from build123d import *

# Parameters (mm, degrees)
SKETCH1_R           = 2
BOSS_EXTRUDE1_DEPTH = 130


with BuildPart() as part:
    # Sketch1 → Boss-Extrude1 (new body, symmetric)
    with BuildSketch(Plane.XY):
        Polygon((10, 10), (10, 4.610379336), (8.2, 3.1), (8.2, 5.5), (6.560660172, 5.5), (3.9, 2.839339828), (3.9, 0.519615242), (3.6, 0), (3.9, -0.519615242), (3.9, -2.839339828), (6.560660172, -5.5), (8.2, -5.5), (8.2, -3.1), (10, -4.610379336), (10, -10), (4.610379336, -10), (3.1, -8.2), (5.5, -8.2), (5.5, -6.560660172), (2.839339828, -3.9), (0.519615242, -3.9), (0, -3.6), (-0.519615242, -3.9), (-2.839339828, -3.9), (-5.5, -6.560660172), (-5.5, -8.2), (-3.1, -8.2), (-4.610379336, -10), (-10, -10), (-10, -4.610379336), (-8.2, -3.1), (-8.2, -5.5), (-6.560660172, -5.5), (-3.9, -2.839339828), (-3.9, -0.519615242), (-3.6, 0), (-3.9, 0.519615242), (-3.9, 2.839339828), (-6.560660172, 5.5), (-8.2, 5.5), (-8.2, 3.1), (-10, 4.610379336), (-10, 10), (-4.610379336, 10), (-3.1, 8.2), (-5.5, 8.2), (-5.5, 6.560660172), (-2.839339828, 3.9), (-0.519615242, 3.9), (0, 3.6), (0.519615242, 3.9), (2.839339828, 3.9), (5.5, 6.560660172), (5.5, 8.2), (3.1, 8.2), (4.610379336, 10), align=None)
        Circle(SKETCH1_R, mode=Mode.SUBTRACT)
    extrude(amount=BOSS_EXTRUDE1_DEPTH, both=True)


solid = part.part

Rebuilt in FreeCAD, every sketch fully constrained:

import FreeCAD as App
import Part
import Sketcher

V = App.Vector
Q = App.Units.Quantity

doc = App.newDocument("Part")
body = doc.addObject("PartDesign::Body", "Body")

# Sketch on XY plane
sketch1 = doc.addObject("Sketcher::SketchObject", "Sketch")
body.addObject(sketch1)
sketch1.AttachmentSupport = (doc.XY_Plane, [""])
sketch1.MapMode = "FlatFace"
sketch1.addGeometry([
    Part.LineSegment(V(10, 4.6, 0), V(10, 10, 0)),  # 0
    Part.LineSegment(V(10, 10, 0), V(4.6, 10, 0)),  # 1
    Part.LineSegment(V(4.6, 10, 0), V(3.1, 8.2, 0)),  # 2
    Part.LineSegment(V(3.1, 8.2, 0), V(5.5, 8.2, 0)),  # 3
    Part.LineSegment(V(5.5, 8.2, 0), V(5.5, 6.6, 0)),  # 4
    Part.LineSegment(V(5.5, 6.6, 0), V(2.8, 3.9, 0)),  # 5
    Part.LineSegment(V(2.8, 3.9, 0), V(0.5, 3.9, 0)),  # 6
    Part.LineSegment(V(0.5, 3.9, 0), V(0, 3.6, 0)),  # 7
    Part.LineSegment(V(0, 3.6, 0), V(-0.5, 3.9, 0)),  # 8
    Part.LineSegment(V(-0.5, 3.9, 0), V(-2.8, 3.9, 0)),  # 9
    Part.LineSegment(V(-2.8, 3.9, 0), V(-5.5, 6.6, 0)),  # 10
    Part.LineSegment(V(-5.5, 6.6, 0), V(-5.5, 8.2, 0)),  # 11
    Part.LineSegment(V(-5.5, 8.2, 0), V(-3.1, 8.2, 0)),  # 12
    Part.LineSegment(V(-3.1, 8.2, 0), V(-4.6, 10, 0)),  # 13
    Part.LineSegment(V(-4.6, 10, 0), V(-10, 10, 0)),  # 14
    Part.LineSegment(V(-10, 10, 0), V(-10, 4.6, 0)),  # 15
    Part.LineSegment(V(-10, 4.6, 0), V(-8.2, 3.1, 0)),  # 16
    Part.LineSegment(V(-8.2, 3.1, 0), V(-8.2, 5.5, 0)),  # 17
    Part.LineSegment(V(-8.2, 5.5, 0), V(-6.6, 5.5, 0)),  # 18
    Part.LineSegment(V(-6.6, 5.5, 0), V(-3.9, 2.8, 0)),  # 19
    Part.LineSegment(V(-3.9, 2.8, 0), V(-3.9, 0.5, 0)),  # 20
    Part.LineSegment(V(-3.9, 0.5, 0), V(-3.6, 0, 0)),  # 21
    Part.LineSegment(V(-3.6, 0, 0), V(-3.9, -0.5, 0)),  # 22
    Part.LineSegment(V(-3.9, -0.5, 0), V(-3.9, -2.8, 0)),  # 23
    Part.LineSegment(V(-3.9, -2.8, 0), V(-6.6, -5.5, 0)),  # 24
    Part.LineSegment(V(-6.6, -5.5, 0), V(-8.2, -5.5, 0)),  # 25
    Part.LineSegment(V(-8.2, -5.5, 0), V(-8.2, -3.1, 0)),  # 26
    Part.LineSegment(V(-8.2, -3.1, 0), V(-10, -4.6, 0)),  # 27
    Part.LineSegment(V(-10, -4.6, 0), V(-10, -10, 0)),  # 28
    Part.LineSegment(V(-10, -10, 0), V(-4.6, -10, 0)),  # 29
    Part.LineSegment(V(-4.6, -10, 0), V(-3.1, -8.2, 0)),  # 30
    Part.LineSegment(V(-3.1, -8.2, 0), V(-5.5, -8.2, 0)),  # 31
    Part.LineSegment(V(-5.5, -8.2, 0), V(-5.5, -6.6, 0)),  # 32
    Part.LineSegment(V(-5.5, -6.6, 0), V(-2.8, -3.9, 0)),  # 33
    Part.LineSegment(V(-2.8, -3.9, 0), V(-0.5, -3.9, 0)),  # 34
    Part.LineSegment(V(-0.5, -3.9, 0), V(0, -3.6, 0)),  # 35
    Part.LineSegment(V(0, -3.6, 0), V(0.5, -3.9, 0)),  # 36
    Part.LineSegment(V(0.5, -3.9, 0), V(2.8, -3.9, 0)),  # 37
    Part.LineSegment(V(2.8, -3.9, 0), V(5.5, -6.6, 0)),  # 38
    Part.LineSegment(V(5.5, -6.6, 0), V(5.5, -8.2, 0)),  # 39
    Part.LineSegment(V(5.5, -8.2, 0), V(3.1, -8.2, 0)),  # 40
    Part.LineSegment(V(3.1, -8.2, 0), V(4.6, -10, 0)),  # 41
    Part.LineSegment(V(4.6, -10, 0), V(10, -10, 0)),  # 42
    Part.LineSegment(V(10, -10, 0), V(10, -4.6, 0)),  # 43
    Part.LineSegment(V(10, -4.6, 0), V(8.2, -3.1, 0)),  # 44
    Part.LineSegment(V(8.2, -3.1, 0), V(8.2, -5.5, 0)),  # 45
    Part.LineSegment(V(8.2, -5.5, 0), V(6.6, -5.5, 0)),  # 46
    Part.LineSegment(V(6.6, -5.5, 0), V(3.9, -2.8, 0)),  # 47
    Part.LineSegment(V(3.9, -2.8, 0), V(3.9, -0.5, 0)),  # 48
    Part.LineSegment(V(3.9, -0.5, 0), V(3.6, 0, 0)),  # 49
    Part.LineSegment(V(3.6, 0, 0), V(3.9, 0.5, 0)),  # 50
    Part.LineSegment(V(3.9, 0.5, 0), V(3.9, 2.8, 0)),  # 51
    Part.LineSegment(V(3.9, 2.8, 0), V(6.6, 5.5, 0)),  # 52
    Part.LineSegment(V(6.6, 5.5, 0), V(8.2, 5.5, 0)),  # 53
    Part.LineSegment(V(8.2, 5.5, 0), V(8.2, 3.1, 0)),  # 54
    Part.LineSegment(V(8.2, 3.1, 0), V(10, 4.6, 0)),  # 55
    Part.Circle(V(0, 0, 0), V(0, 0, 1), 2),  # 56
], False)
sketch1.addConstraint([
    Sketcher.Constraint("Coincident", 0, 2, 1, 1),
    Sketcher.Constraint("Coincident", 1, 2, 2, 1),
    Sketcher.Constraint("Coincident", 2, 2, 3, 1),
    Sketcher.Constraint("Coincident", 3, 2, 4, 1),
    Sketcher.Constraint("Coincident", 4, 2, 5, 1),
    Sketcher.Constraint("Coincident", 5, 2, 6, 1),
    Sketcher.Constraint("Coincident", 6, 2, 7, 1),
    Sketcher.Constraint("Coincident", 7, 2, 8, 1),
    Sketcher.Constraint("Coincident", 8, 2, 9, 1),
    Sketcher.Constraint("Coincident", 9, 2, 10, 1),
    Sketcher.Constraint("Coincident", 10, 2, 11, 1),
    Sketcher.Constraint("Coincident", 11, 2, 12, 1),
    Sketcher.Constraint("Coincident", 12, 2, 13, 1),
    Sketcher.Constraint("Coincident", 13, 2, 14, 1),
    Sketcher.Constraint("Coincident", 14, 2, 15, 1),
    Sketcher.Constraint("Coincident", 15, 2, 16, 1),
    Sketcher.Constraint("Coincident", 16, 2, 17, 1),
    Sketcher.Constraint("Coincident", 17, 2, 18, 1),
    Sketcher.Constraint("Coincident", 18, 2, 19, 1),
    Sketcher.Constraint("Coincident", 19, 2, 20, 1),
    Sketcher.Constraint("Coincident", 20, 2, 21, 1),
    Sketcher.Constraint("Coincident", 21, 2, 22, 1),
    Sketcher.Constraint("Coincident", 22, 2, 23, 1),
    Sketcher.Constraint("Coincident", 23, 2, 24, 1),
    Sketcher.Constraint("Coincident", 24, 2, 25, 1),
    Sketcher.Constraint("Coincident", 25, 2, 26, 1),
    Sketcher.Constraint("Coincident", 26, 2, 27, 1),
    Sketcher.Constraint("Coincident", 27, 2, 28, 1),
    Sketcher.Constraint("Coincident", 28, 2, 29, 1),
    Sketcher.Constraint("Coincident", 29, 2, 30, 1),
    Sketcher.Constraint("Coincident", 30, 2, 31, 1),
    Sketcher.Constraint("Coincident", 31, 2, 32, 1),
    Sketcher.Constraint("Coincident", 32, 2, 33, 1),
    Sketcher.Constraint("Coincident", 33, 2, 34, 1),
    Sketcher.Constraint("Coincident", 34, 2, 35, 1),
    Sketcher.Constraint("Coincident", 35, 2, 36, 1),
    Sketcher.Constraint("Coincident", 36, 2, 37, 1),
    Sketcher.Constraint("Coincident", 37, 2, 38, 1),
    Sketcher.Constraint("Coincident", 38, 2, 39, 1),
    Sketcher.Constraint("Coincident", 39, 2, 40, 1),
    Sketcher.Constraint("Coincident", 40, 2, 41, 1),
    Sketcher.Constraint("Coincident", 41, 2, 42, 1),
    Sketcher.Constraint("Coincident", 42, 2, 43, 1),
    Sketcher.Constraint("Coincident", 43, 2, 44, 1),
    Sketcher.Constraint("Coincident", 44, 2, 45, 1),
    Sketcher.Constraint("Coincident", 45, 2, 46, 1),
    Sketcher.Constraint("Coincident", 46, 2, 47, 1),
    Sketcher.Constraint("Coincident", 47, 2, 48, 1),
    Sketcher.Constraint("Coincident", 48, 2, 49, 1),
    Sketcher.Constraint("Coincident", 49, 2, 50, 1),
    Sketcher.Constraint("Coincident", 50, 2, 51, 1),
    Sketcher.Constraint("Coincident", 51, 2, 52, 1),
    Sketcher.Constraint("Coincident", 52, 2, 53, 1),
    Sketcher.Constraint("Coincident", 53, 2, 54, 1),
    Sketcher.Constraint("Coincident", 54, 2, 55, 1),
    Sketcher.Constraint("Coincident", 55, 2, 0, 1),
    Sketcher.Constraint("Vertical", 0),
    Sketcher.Constraint("Horizontal", 1),
    Sketcher.Constraint("Horizontal", 3),
    Sketcher.Constraint("Vertical", 4),
    Sketcher.Constraint("Horizontal", 6),
    Sketcher.Constraint("Horizontal", 9),
    Sketcher.Constraint("Vertical", 11),
    Sketcher.Constraint("Horizontal", 12),
    Sketcher.Constraint("Horizontal", 14),
    Sketcher.Constraint("Vertical", 15),
    Sketcher.Constraint("Vertical", 17),
    Sketcher.Constraint("Horizontal", 18),
    Sketcher.Constraint("Vertical", 20),
    Sketcher.Constraint("Vertical", 23),
    Sketcher.Constraint("Horizontal", 25),
    Sketcher.Constraint("Vertical", 26),
    Sketcher.Constraint("Vertical", 28),
    Sketcher.Constraint("Horizontal", 29),
    Sketcher.Constraint("Horizontal", 31),
    Sketcher.Constraint("Vertical", 32),
    Sketcher.Constraint("Horizontal", 34),
    Sketcher.Constraint("Horizontal", 37),
    Sketcher.Constraint("Vertical", 39),
    Sketcher.Constraint("Horizontal", 40),
    Sketcher.Constraint("Horizontal", 42),
    Sketcher.Constraint("Vertical", 43),
    Sketcher.Constraint("Vertical", 45),
    Sketcher.Constraint("Horizontal", 46),
    Sketcher.Constraint("Vertical", 48),
    Sketcher.Constraint("Vertical", 51),
    Sketcher.Constraint("Horizontal", 53),
    Sketcher.Constraint("Vertical", 54),
    Sketcher.Constraint("Coincident", 56, 3, -1, 1),
    Sketcher.Constraint("Symmetric", 0, 2, 28, 2, -1, 1),
    Sketcher.Constraint("Symmetric", 2, 2, 30, 2, -1, 1),
    Sketcher.Constraint("Symmetric", 4, 2, 32, 2, -1, 1),
    Sketcher.Constraint("Symmetric", 5, 2, 33, 2, -1, 1),
    Sketcher.Constraint("Symmetric", 7, 2, 35, 2, -1, 1),
    Sketcher.Constraint("Symmetric", 8, 2, 36, 2, -1, 1),
    Sketcher.Constraint("Symmetric", 10, 2, 38, 2, -1, 1),
    Sketcher.Constraint("Symmetric", 12, 2, 40, 2, -1, 1),
    Sketcher.Constraint("Symmetric", 13, 2, 41, 2, -1, 1),
    Sketcher.Constraint("Symmetric", 15, 2, 43, 2, -1, 1),
    Sketcher.Constraint("Symmetric", 16, 2, 44, 2, -1, 1),
    Sketcher.Constraint("Symmetric", 18, 2, 46, 2, -1, 1),
    Sketcher.Constraint("Symmetric", 19, 2, 47, 2, -1, 1),
    Sketcher.Constraint("Symmetric", 21, 2, 49, 2, -1, 1),
    Sketcher.Constraint("Symmetric", 22, 2, 50, 2, -1, 1),
    Sketcher.Constraint("Symmetric", 24, 2, 52, 2, -1, 1),
    Sketcher.Constraint("Symmetric", 26, 2, 54, 2, -1, 1),
    Sketcher.Constraint("Symmetric", 6, 2, 8, 2, -2),
    Sketcher.Constraint("Symmetric", 4, 2, 10, 2, -2),
    Sketcher.Constraint("Symmetric", 2, 2, 12, 2, -2),
    Sketcher.Constraint("Symmetric", 1, 2, 13, 2, -2),
    Sketcher.Constraint("Symmetric", 27, 2, 43, 2, -2),
    Sketcher.Constraint("Symmetric", 26, 2, 44, 2, -2),
    Sketcher.Constraint("Symmetric", 24, 2, 46, 2, -2),
    Sketcher.Constraint("Symmetric", 23, 2, 47, 2, -2),
    Sketcher.Constraint("PointOnObject", 7, 2, -2),
    Sketcher.Constraint("PointOnObject", 21, 2, -1),
    Sketcher.Constraint("Perpendicular", 5, 10),
    Sketcher.Constraint("Perpendicular", 2, 16),
    Sketcher.Constraint("Parallel", 10, 19),
    Sketcher.Constraint("Perpendicular", 7, 21),
    Sketcher.Constraint("Perpendicular", 8, 22),
    Sketcher.Constraint("Perpendicular", 19, 24),
    Sketcher.Constraint("Perpendicular", 16, 30),
    Sketcher.Constraint("Perpendicular", 21, 35),
    Sketcher.Constraint("Perpendicular", 33, 38),
    Sketcher.Constraint("Perpendicular", 35, 49),
    Sketcher.Constraint("Perpendicular", 47, 52),
    Sketcher.Constraint("Perpendicular", 41, 55),
    Sketcher.Constraint("Equal", 42, 0),
    Sketcher.Constraint("Equal", 53, 4),
    Sketcher.Constraint("Equal", 40, 17),
    Sketcher.Constraint("Equal", 37, 20),
    Sketcher.Constraint("Equal", 13, 16),
    Sketcher.Constraint("Equal", 10, 19),
    Sketcher.Constraint("Equal", 8, 21),
    Sketcher.Constraint("Diameter", 56, 4.0),
    Sketcher.Constraint("Angle", 2, Q("-130 deg")),
    Sketcher.Constraint("Angle", 7, Q("-150 deg")),
    Sketcher.Constraint("DistanceX", 3, 1, 3, 2, 2.4),
    Sketcher.Constraint("DistanceX", -1, 1, 0, 2, 10.0),
    Sketcher.Constraint("Distance", 7, 0.6),
    Sketcher.Constraint("DistanceX", -1, 1, 2, 2, 3.1),
    Sketcher.Constraint("DistanceY", -1, 1, 2, 2, 8.2),
    Sketcher.Constraint("DistanceY", -1, 1, 5, 2, 3.9),
    Sketcher.Constraint("DistanceX", 18, 1, 18, 2, 1.63934),
])
pad1 = doc.addObject("PartDesign::Pad", "Pad")
body.addObject(pad1)
pad1.Profile = sketch1
pad1.Length = 260
pad1.Midplane = True

doc.recompute()
